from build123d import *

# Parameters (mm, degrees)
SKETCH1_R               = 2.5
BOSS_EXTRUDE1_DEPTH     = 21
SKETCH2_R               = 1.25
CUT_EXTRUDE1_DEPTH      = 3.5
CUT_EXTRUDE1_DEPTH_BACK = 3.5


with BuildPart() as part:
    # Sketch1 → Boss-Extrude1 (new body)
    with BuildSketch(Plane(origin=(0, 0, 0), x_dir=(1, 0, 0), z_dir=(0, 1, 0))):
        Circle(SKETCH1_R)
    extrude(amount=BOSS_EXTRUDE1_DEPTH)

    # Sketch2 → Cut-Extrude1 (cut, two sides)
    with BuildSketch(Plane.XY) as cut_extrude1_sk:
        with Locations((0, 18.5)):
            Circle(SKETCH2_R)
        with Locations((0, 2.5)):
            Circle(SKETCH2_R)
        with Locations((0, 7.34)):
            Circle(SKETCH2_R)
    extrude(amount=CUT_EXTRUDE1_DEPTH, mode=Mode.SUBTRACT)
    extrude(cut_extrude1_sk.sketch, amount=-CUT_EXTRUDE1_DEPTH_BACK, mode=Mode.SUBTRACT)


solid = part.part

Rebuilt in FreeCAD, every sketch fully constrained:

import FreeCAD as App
import Part
import Sketcher

doc = App.newDocument("Part")
body = doc.addObject("PartDesign::Body", "Body")

# Sketch on XZ plane
sketch1 = body.newObject("Sketcher::SketchObject", "Sketch")
sketch1.AttachmentSupport = (doc.getObject("XZ_Plane"), [""])
sketch1.MapMode = "FlatFace"
sketch1.addGeometry(Part.Circle(App.Vector(0, 0, 0), App.Vector(0, 0, 1), 2.5), False)
sketch1.addConstraint([
    Sketcher.Constraint("Coincident", 0, 3, -1, 1),
    Sketcher.Constraint("Diameter", 0, 5.0),
])
pad1 = body.newObject("PartDesign::Pad", "Pad")
pad1.Profile = sketch1
pad1.Length = 21
pad1.Reversed = True

# Sketch on XY plane
sketch2 = body.newObject("Sketcher::SketchObject", "Sketch001")
sketch2.AttachmentSupport = (doc.getObject("XY_Plane"), [""])
sketch2.MapMode = "FlatFace"
sketch2.addGeometry([
    Part.Circle(App.Vector(0, 18.5, 0), App.Vector(0, 0, 1), 1.2),
    Part.Circle(App.Vector(0, 2.5, 0), App.Vector(0, 0, 1), 1.2),
    Part.Circle(App.Vector(0, 7.3, 0), App.Vector(0, 0, 1), 1.2),
], False)
sketch2.addConstraint([
    Sketcher.Constraint("Equal", 0, 1),
    Sketcher.Constraint("Equal", 1, 2),
    Sketcher.Constraint("PointOnObject", 0, 3, -2),
    Sketcher.Constraint("PointOnObject", 1, 3, -2),
    Sketcher.Constraint("PointOnObject", 2, 3, -2),
    Sketcher.Constraint("Diameter", 0, 2.5),
    Sketcher.Constraint("DistanceY", 1, 3, 0, 3, 16.0),
    Sketcher.Constraint("DistanceY", -1, 1, 0, 3, 18.5),
    Sketcher.Constraint("DistanceY", -1, 1, 2, 3, 7.34),
])
pocket1 = body.newObject("PartDesign::Pocket", "Pocket")
pocket1.Profile = sketch2
pocket1.Type = "ThroughAll"
pocket1.Midplane = True

doc.recompute()
